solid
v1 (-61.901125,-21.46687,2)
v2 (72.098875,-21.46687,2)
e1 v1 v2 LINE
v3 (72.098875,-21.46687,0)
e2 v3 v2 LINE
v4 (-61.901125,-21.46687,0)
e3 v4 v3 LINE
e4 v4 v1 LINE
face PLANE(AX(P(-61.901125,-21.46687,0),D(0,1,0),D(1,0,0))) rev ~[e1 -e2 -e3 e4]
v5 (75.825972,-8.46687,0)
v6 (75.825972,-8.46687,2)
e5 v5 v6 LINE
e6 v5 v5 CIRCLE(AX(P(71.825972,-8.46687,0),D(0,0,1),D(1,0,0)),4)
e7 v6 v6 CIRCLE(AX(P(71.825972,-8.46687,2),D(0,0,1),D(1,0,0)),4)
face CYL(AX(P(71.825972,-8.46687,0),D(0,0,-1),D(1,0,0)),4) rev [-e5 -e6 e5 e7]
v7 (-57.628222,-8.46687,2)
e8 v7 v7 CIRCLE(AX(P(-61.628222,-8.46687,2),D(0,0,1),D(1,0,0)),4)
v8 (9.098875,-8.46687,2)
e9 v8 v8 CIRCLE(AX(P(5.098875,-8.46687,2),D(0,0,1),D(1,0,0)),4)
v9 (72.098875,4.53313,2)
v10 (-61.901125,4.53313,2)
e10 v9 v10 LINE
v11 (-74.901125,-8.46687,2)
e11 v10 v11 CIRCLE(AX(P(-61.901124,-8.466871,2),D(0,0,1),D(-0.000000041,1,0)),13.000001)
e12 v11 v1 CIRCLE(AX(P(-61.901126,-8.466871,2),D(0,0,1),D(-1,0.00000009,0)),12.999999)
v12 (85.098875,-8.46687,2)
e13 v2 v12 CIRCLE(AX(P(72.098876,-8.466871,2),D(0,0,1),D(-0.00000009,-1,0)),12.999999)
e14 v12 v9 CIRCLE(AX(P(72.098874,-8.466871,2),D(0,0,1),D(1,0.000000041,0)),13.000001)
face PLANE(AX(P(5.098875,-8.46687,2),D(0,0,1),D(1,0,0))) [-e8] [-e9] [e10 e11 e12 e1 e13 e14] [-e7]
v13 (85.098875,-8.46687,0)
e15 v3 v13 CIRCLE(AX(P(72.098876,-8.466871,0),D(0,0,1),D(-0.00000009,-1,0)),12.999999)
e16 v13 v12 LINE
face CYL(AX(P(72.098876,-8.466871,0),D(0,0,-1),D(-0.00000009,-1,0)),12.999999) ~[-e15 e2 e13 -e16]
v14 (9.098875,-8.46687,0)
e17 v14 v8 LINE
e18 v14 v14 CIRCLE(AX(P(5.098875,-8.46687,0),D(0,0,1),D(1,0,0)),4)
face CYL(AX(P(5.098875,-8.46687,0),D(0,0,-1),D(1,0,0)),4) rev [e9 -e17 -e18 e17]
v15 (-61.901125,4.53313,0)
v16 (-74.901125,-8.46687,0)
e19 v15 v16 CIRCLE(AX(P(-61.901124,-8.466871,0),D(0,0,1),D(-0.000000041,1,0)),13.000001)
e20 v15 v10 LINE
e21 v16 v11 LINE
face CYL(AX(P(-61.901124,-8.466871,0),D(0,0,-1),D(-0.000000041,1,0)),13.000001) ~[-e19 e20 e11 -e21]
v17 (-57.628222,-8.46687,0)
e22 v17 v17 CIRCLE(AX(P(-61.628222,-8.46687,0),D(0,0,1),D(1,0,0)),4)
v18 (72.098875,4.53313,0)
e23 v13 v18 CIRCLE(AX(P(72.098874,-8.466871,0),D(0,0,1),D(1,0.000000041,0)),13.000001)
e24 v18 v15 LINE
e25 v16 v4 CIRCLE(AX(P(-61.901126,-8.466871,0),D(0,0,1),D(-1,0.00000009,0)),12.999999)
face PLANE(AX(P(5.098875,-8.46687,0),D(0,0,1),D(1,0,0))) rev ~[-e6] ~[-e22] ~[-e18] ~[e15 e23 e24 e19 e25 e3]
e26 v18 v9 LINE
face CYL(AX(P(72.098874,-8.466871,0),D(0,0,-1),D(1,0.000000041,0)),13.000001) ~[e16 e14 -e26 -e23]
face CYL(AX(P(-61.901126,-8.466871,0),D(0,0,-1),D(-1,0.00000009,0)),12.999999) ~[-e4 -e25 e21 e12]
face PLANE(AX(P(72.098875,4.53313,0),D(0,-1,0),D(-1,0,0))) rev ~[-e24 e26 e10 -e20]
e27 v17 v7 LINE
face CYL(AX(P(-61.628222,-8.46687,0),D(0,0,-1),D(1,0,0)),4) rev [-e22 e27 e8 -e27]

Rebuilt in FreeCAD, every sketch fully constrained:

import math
import FreeCAD as App
import Part
import Sketcher

V = App.Vector
Q = App.Units.Quantity

doc = App.newDocument("Part")
body = doc.addObject("PartDesign::Body", "Body")

# Sketch on XY plane
sketch1 = doc.addObject("Sketcher::SketchObject", "Sketch")
body.addObject(sketch1)
sketch1.AttachmentSupport = (doc.XY_Plane, [""])
sketch1.MapMode = "FlatFace"
sketch1.addGeometry([
    Part.LineSegment(V(72.098875, 4.53313, 0), V(-61.901125, 4.53313, 0)),  # 0
    Part.ArcOfCircle(Part.Circle(V(-61.901124, -8.466871, 0), V(0, 0, 1), 13.000001), math.radians(90.000002), math.radians(179.999998)),  # 1
    Part.ArcOfCircle(Part.Circle(V(-61.901126, -8.466871, 0), V(0, 0, 1), 12.999999), math.radians(179.999995), math.radians(270.000005)),  # 2
    Part.LineSegment(V(-61.901125, -21.46687, 0), V(72.098875, -21.46687, 0)),  # 3
    Part.ArcOfCircle(Part.Circle(V(72.098876, -8.466871, 0), V(0, 0, 1), 12.999999), math.radians(-90.000005), math.radians(0.000005)),  # 4
    Part.ArcOfCircle(Part.Circle(V(72.098874, -8.466871, 0), V(0, 0, 1), 13.000001), math.radians(0.000002), math.radians(89.999998)),  # 5
    Part.Circle(V(-61.628222, -8.46687, 0), V(0, 0, 1), 4),  # 6
    Part.Circle(V(5.098875, -8.46687, 0), V(0, 0, 1), 4),  # 7
    Part.Circle(V(71.825972, -8.46687, 0), V(0, 0, 1), 4),  # 8
], False)
sketch1.addConstraint([
    Sketcher.Constraint("Tangent", 0, 2, 1, 1),
    Sketcher.Constraint("Tangent", 1, 2, 2, 1),
    Sketcher.Constraint("Tangent", 2, 2, 3, 1),
    Sketcher.Constraint("Tangent", 3, 2, 4, 1),
    Sketcher.Constraint("Tangent", 4, 2, 5, 1),
    Sketcher.Constraint("Tangent", 5, 2, 0, 1),
    Sketcher.Constraint("Horizontal", 0),
    Sketcher.Constraint("Horizontal", 3),
    Sketcher.Constraint("Equal", 1, 2),
    Sketcher.Constraint("Equal", 2, 4),
    Sketcher.Constraint("Equal", 6, 7),
    Sketcher.Constraint("Equal", 7, 8),
    Sketcher.Constraint("Horizontal", 5, 3, 6, 3),
    Sketcher.Constraint("Horizontal", 6, 3, 7, 3),
    Sketcher.Constraint("Horizontal", 7, 3, 8, 3),
    Sketcher.Constraint("Horizontal", 8, 3, 1, 2),
    Sketcher.Constraint("Horizontal", 1, 2, 4, 2),
    Sketcher.Constraint("Diameter", 6, Q("8 mm")),
    Sketcher.Constraint("Radius", 1, Q("13.000001 mm")),
    Sketcher.Constraint("DistanceX", 0, 2, 0, 1, Q("134 mm")),
    Sketcher.Constraint("DistanceX", 7, 3, 5, 3, Q("66.999999 mm")),
    Sketcher.Constraint("DistanceX", 6, 3, 4, 3, Q("133.727098 mm")),
    Sketcher.Constraint("DistanceY", 1, 3, -1, 1, Q("8.466871 mm")),
    Sketcher.Constraint("DistanceX", -1, 1, 8, 3, Q("71.825972 mm")),
    Sketcher.Constraint("DistanceX", 1, 3, -1, 1, Q("61.901124 mm")),
])
pad1 = doc.addObject("PartDesign::Pad", "Pad")
body.addObject(pad1)
pad1.Profile = sketch1
pad1.Length = 2

doc.recompute()
